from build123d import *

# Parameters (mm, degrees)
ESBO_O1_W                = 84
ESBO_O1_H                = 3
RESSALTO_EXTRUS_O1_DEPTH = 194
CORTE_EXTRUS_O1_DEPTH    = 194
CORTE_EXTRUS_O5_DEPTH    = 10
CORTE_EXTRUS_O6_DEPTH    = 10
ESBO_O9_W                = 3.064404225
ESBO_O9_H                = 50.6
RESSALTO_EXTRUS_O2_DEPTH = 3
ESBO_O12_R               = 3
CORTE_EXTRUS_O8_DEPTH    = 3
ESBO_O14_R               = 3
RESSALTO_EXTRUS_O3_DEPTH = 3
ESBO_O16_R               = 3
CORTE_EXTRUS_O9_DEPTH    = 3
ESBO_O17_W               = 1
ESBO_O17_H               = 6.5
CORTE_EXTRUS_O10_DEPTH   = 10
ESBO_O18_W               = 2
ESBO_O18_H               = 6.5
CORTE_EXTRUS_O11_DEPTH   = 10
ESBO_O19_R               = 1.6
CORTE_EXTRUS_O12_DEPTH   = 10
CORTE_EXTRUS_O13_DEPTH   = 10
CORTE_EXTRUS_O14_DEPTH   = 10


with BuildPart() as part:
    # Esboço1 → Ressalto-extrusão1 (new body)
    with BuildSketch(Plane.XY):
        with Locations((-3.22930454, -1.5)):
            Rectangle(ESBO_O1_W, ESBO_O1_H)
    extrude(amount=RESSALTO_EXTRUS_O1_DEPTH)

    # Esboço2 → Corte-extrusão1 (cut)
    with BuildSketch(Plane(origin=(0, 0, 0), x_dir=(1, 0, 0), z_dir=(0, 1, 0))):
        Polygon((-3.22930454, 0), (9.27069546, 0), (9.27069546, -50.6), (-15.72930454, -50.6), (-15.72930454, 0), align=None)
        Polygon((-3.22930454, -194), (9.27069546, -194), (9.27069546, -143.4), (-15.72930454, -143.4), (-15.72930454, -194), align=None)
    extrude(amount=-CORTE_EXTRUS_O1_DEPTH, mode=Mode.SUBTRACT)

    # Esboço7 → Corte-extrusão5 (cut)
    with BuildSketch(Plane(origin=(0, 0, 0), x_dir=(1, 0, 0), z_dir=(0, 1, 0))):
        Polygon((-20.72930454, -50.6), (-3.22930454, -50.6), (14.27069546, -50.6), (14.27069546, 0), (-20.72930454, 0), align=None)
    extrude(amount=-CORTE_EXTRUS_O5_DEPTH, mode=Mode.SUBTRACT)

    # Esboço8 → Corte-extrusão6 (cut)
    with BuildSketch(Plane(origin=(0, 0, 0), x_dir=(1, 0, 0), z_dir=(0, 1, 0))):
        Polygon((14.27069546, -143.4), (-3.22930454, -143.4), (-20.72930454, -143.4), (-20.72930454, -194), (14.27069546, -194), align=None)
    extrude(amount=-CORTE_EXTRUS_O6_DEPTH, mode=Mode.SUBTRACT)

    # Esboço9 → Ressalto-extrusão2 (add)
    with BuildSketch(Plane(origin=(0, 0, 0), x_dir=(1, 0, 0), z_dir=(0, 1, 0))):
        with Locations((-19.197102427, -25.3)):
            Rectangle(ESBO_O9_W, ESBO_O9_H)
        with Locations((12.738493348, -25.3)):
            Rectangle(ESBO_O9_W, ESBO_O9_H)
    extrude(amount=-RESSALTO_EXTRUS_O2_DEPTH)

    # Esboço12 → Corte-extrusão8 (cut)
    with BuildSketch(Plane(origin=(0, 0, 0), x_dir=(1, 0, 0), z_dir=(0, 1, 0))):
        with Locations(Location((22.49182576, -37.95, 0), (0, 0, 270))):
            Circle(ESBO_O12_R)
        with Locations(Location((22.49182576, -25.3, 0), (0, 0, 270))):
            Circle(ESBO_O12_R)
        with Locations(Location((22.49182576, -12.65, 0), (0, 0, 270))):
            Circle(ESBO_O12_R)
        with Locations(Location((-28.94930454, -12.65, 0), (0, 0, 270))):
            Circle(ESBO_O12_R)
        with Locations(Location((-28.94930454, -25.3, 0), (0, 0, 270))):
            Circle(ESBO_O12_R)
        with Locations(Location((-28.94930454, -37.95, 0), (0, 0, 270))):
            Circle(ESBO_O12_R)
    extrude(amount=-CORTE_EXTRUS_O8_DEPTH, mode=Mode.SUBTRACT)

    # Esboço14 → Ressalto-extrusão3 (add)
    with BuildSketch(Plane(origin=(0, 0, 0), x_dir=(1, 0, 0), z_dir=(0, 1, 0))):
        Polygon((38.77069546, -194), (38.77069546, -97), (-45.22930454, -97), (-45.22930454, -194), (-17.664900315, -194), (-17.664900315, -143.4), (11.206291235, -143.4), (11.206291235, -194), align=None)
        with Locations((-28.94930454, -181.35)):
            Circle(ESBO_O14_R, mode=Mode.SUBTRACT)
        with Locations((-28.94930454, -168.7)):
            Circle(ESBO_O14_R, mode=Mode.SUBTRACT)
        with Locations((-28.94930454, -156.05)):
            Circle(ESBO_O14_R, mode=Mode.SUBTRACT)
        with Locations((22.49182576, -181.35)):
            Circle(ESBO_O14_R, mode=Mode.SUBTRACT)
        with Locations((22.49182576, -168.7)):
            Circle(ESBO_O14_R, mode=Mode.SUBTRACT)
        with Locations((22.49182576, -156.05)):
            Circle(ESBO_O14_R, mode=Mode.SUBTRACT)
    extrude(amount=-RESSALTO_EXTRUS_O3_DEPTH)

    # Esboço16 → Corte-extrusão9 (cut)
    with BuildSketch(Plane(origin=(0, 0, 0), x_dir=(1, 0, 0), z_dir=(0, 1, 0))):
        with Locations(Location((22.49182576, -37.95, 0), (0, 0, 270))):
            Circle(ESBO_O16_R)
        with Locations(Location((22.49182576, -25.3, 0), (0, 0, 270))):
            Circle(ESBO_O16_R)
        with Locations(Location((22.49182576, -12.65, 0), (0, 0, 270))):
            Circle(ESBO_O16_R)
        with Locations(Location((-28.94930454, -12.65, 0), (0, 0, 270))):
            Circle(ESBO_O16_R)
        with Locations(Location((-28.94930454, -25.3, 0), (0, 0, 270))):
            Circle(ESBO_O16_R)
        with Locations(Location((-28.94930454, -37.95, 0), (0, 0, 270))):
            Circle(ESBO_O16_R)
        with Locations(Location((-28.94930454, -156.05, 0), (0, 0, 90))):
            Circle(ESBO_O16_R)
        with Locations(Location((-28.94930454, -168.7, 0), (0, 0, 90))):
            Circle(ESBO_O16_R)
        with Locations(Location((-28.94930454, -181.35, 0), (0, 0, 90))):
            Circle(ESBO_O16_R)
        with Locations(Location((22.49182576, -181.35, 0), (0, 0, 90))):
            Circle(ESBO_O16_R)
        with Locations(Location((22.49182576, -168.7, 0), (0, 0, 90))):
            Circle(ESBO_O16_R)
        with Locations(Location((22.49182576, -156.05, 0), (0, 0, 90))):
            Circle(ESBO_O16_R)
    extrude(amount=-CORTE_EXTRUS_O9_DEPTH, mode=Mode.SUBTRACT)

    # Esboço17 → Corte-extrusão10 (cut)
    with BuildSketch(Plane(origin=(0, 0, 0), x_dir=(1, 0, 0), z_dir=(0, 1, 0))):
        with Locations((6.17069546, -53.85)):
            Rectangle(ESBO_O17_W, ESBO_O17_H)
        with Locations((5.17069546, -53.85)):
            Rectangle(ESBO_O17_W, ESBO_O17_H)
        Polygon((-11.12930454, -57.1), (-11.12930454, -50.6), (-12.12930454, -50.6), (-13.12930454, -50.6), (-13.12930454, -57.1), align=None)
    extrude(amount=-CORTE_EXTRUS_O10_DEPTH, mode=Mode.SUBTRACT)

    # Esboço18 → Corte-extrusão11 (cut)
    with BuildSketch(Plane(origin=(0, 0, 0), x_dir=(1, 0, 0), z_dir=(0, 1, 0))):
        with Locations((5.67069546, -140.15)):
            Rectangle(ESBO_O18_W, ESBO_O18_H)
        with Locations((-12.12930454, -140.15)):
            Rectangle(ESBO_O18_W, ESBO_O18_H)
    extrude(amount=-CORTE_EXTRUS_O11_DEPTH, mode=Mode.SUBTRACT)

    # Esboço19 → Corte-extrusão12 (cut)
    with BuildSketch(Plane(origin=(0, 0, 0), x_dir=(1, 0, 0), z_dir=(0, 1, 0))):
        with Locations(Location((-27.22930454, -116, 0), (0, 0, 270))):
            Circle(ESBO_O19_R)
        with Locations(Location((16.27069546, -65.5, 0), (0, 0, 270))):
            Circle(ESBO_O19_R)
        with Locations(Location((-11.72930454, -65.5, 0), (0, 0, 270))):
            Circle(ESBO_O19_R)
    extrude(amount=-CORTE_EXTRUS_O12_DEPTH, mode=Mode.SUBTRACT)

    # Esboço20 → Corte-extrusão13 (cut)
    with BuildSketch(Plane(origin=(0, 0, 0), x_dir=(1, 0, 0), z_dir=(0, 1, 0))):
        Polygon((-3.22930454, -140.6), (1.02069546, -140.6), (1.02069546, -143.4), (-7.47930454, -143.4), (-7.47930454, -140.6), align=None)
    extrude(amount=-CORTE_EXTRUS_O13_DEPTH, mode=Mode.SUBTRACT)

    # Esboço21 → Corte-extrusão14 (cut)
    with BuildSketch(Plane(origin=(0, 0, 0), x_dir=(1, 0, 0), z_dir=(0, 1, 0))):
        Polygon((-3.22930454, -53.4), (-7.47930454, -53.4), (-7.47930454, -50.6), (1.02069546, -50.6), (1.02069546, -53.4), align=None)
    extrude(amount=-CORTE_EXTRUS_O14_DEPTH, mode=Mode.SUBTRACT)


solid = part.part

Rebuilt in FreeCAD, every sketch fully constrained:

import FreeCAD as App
import Part
import Sketcher


def add_polygon(sketch, points):
    """Adds a closed chain of lines whose ends are joined by coincident constraints."""
    first, n = sketch.GeometryCount, len(points)
    for a, b in zip(points, points[1:] + points[:1]):
        sketch.addGeometry(Part.LineSegment(App.Vector(*a, 0), App.Vector(*b, 0)), False)
    for i in range(n):
        sketch.addConstraint(Sketcher.Constraint("Coincident", first + i, 2, first + (i + 1) % n, 1))

doc = App.newDocument("Part")
body = doc.addObject("PartDesign::Body", "Body")

# Sketch on XY plane
sketch1 = body.newObject("Sketcher::SketchObject", "Sketch")
sketch1.AttachmentSupport = (doc.getObject("XY_Plane"), [""])
sketch1.MapMode = "FlatFace"
add_polygon(sketch1, [(-45.2, 0), (-45.2, -3), (38.8, -3), (38.8, 0)])  # lines 0-3
sketch1.addConstraint([
    Sketcher.Constraint("Vertical", 0),
    Sketcher.Constraint("Horizontal", 1),
    Sketcher.Constraint("Vertical", 2),
    Sketcher.Constraint("Horizontal", 3),
    Sketcher.Constraint("PointOnObject", 2, 2, -1),
    Sketcher.Constraint("DistanceX", 1, 1, 1, 2, 84.0),
    Sketcher.Constraint("DistanceY", 0, 2, 0, 1, 3.0),
    Sketcher.Constraint("DistanceX", 0, 2, -1, 1, 45.229305),
])
pad1 = body.newObject("PartDesign::Pad", "Pad")
pad1.Profile = sketch1
pad1.Length = 194

# Sketch on XZ plane
sketch2 = body.newObject("Sketcher::SketchObject", "Sketch001")
sketch2.AttachmentSupport = (doc.getObject("XZ_Plane"), [""])
sketch2.MapMode = "FlatFace"
add_polygon(sketch2, [(9, 0), (-16, 0), (-16, 51), (9, 51)])  # lines 0-3
add_polygon(sketch2, [(9, 194), (9, 143), (-16, 143), (-16, 194)])  # lines 4-7
sketch2.addConstraint([
    Sketcher.Constraint("Horizontal", 0),
    Sketcher.Constraint("Vertical", 1),
    Sketcher.Constraint("Horizontal", 2),
    Sketcher.Constraint("Vertical", 3),
    Sketcher.Constraint("Vertical", 4),
    Sketcher.Constraint("Horizontal", 5),
    Sketcher.Constraint("Vertical", 6),
    Sketcher.Constraint("Horizontal", 7),
    Sketcher.Constraint("PointOnObject", 0, 2, -1),
    Sketcher.Constraint("Vertical", 3, 2, 4, 2),
    Sketcher.Constraint("Vertical", 1, 2, 5, 2),
    Sketcher.Constraint("Equal", 3, 4),
    Sketcher.Constraint("DistanceX", 0, 2, 0, 1, 25.0),
    Sketcher.Constraint("DistanceY", 1, 1, 1, 2, 50.6),
    Sketcher.Constraint("DistanceY", -1, 1, 6, 2, 194.0),
    Sketcher.Constraint("DistanceX", 0, 2, -1, 1, 15.729305),
])
pocket1 = body.newObject("PartDesign::Pocket", "Pocket")
pocket1.Profile = sketch2
pocket1.Length = 194
pocket1.Reversed = True

# Sketch on XZ plane
sketch3 = body.newObject("Sketcher::SketchObject", "Sketch002")
sketch3.AttachmentSupport = (doc.getObject("XZ_Plane"), [""])
sketch3.MapMode = "FlatFace"
add_polygon(sketch3, [(-21, 51), (14, 51), (14, 0), (-21, 0)])  # lines 0-3
sketch3.addConstraint([
    Sketcher.Constraint("Horizontal", 0),
    Sketcher.Constraint("Vertical", 1),
    Sketcher.Constraint("Horizontal", 2),
    Sketcher.Constraint("Vertical", 3),
    Sketcher.Constraint("PointOnObject", 1, 2, -1),
    Sketcher.Constraint("DistanceX", 0, 1, 0, 2, 35.0),
    Sketcher.Constraint("DistanceY", 1, 2, 1, 1, 50.6),
    Sketcher.Constraint("DistanceX", -1, 1, 0, 2, 14.270695),
])
pocket2 = body.newObject("PartDesign::Pocket", "Pocket001")
pocket2.Profile = sketch3
pocket2.Length = 10
pocket2.Reversed = True

# Sketch on XZ plane
sketch4 = body.newObject("Sketcher::SketchObject", "Sketch003")
sketch4.AttachmentSupport = (doc.getObject("XZ_Plane"), [""])
sketch4.MapMode = "FlatFace"
add_polygon(sketch4, [(14, 143), (-21, 143), (-21, 194), (14, 194)])  # lines 0-3
sketch4.addConstraint([
    Sketcher.Constraint("Horizontal", 0),
    Sketcher.Constraint("Vertical", 1),
    Sketcher.Constraint("Horizontal", 2),
    Sketcher.Constraint("Vertical", 3),
    Sketcher.Constraint("DistanceX", 0, 2, 0, 1, 35.0),
    Sketcher.Constraint("DistanceY", 1, 1, 1, 2, 50.6),
    Sketcher.Constraint("DistanceY", -1, 1, 1, 2, 194.0),
    Sketcher.Constraint("DistanceX", 0, 2, -1, 1, 20.729305),
])
pocket3 = body.newObject("PartDesign::Pocket", "Pocket002")
pocket3.Profile = sketch4
pocket3.Length = 10
pocket3.Reversed = True

# Sketch on XZ plane
sketch5 = body.newObject("Sketcher::SketchObject", "Sketch004")
sketch5.AttachmentSupport = (doc.getObject("XZ_Plane"), [""])
sketch5.MapMode = "FlatFace"
add_polygon(sketch5, [(-20.7, 0), (-20.7, 50.6), (-17.7, 50.6), (-17.7, 0)])  # lines 0-3
add_polygon(sketch5, [(11.2, 0), (11.2, 50.6), (14.3, 50.6), (14.3, 0)])  # lines 4-7
sketch5.addConstraint([
    Sketcher.Constraint("Vertical", 0),
    Sketcher.Constraint("Horizontal", 1),
    Sketcher.Constraint("Vertical", 2),
    Sketcher.Constraint("Horizontal", 3),
    Sketcher.Constraint("Vertical", 4),
    Sketcher.Constraint("Horizontal", 5),
    Sketcher.Constraint("Vertical", 6),
    Sketcher.Constraint("Horizontal", 7),
    Sketcher.Constraint("PointOnObject", 2, 2, -1),
    Sketcher.Constraint("PointOnObject", 6, 2, -1),
    Sketcher.Constraint("Horizontal", 1, 2, 4, 2),
    Sketcher.Constraint("Equal", 3, 5),
    Sketcher.Constraint("DistanceY", 0, 1, 0, 2, 50.6),
    Sketcher.Constraint("DistanceX", 0, 2, 5, 2, 35.0),
    Sketcher.Constraint("DistanceX", 1, 2, -1, 1, 17.6649),
    Sketcher.Constraint("DistanceX", 1, 1, 1, 2, 3.064404),
])
pad2 = body.newObject("PartDesign::Pad", "Pad001")
pad2.Profile = sketch5
pad2.Length = 3

# Sketch on XZ plane
sketch6 = body.newObject("Sketcher::SketchObject", "Sketch005")
sketch6.AttachmentSupport = (doc.getObject("XZ_Plane"), [""])
sketch6.MapMode = "FlatFace"
sketch6.addGeometry([
    Part.Circle(App.Vector(22.5, 38, 0), App.Vector(0, 0, 1), 3),  # 0
    Part.Circle(App.Vector(22.5, 25.3, 0), App.Vector(0, 0, 1), 3),  # 1
    Part.Circle(App.Vector(22.5, 12.7, 0), App.Vector(0, 0, 1), 3),  # 2
    Part.Circle(App.Vector(-28.9, 12.7, 0), App.Vector(0, 0, 1), 3),  # 3
    Part.Circle(App.Vector(-28.9, 25.3, 0), App.Vector(0, 0, 1), 3),  # 4
    Part.Circle(App.Vector(-28.9, 38, 0), App.Vector(0, 0, 1), 3),  # 5
], False)
sketch6.addConstraint([
    Sketcher.Constraint("Equal", 0, 1),
    Sketcher.Constraint("Equal", 1, 2),
    Sketcher.Constraint("Equal", 2, 3),
    Sketcher.Constraint("Equal", 3, 4),
    Sketcher.Constraint("Equal", 4, 5),
    Sketcher.Constraint("Horizontal", 2, 3, 3, 3),
    Sketcher.Constraint("Horizontal", 1, 3, 4, 3),
    Sketcher.Constraint("Horizontal", 0, 3, 5, 3),
    Sketcher.Constraint("Vertical", 0, 3, 1, 3),
    Sketcher.Constraint("Vertical", 1, 3, 2, 3),
    Sketcher.Constraint("Vertical", 3, 3, 4, 3),
    Sketcher.Constraint("Vertical", 4, 3, 5, 3),
    Sketcher.Constraint("Diameter", 0, 6.0),
    Sketcher.Constraint("DistanceY", -1, 1, 1, 3, 25.3),
    Sketcher.Constraint("DistanceY", 2, 3, 0, 3, 25.3),
    Sketcher.Constraint("DistanceY", -1, 1, 0, 3, 37.95),
    Sketcher.Constraint("DistanceX", 3, 3, 2, 3, 51.44113),
    Sketcher.Constraint("DistanceX", -1, 1, 0, 3, 22.491826),
])
pocket4 = body.newObject("PartDesign::Pocket", "Pocket003")
pocket4.Profile = sketch6
pocket4.Length = 3
pocket4.Reversed = True

# Sketch on XZ plane
sketch7 = body.newObject("Sketcher::SketchObject", "Sketch006")
sketch7.AttachmentSupport = (doc.getObject("XZ_Plane"), [""])
sketch7.MapMode = "FlatFace"
add_polygon(sketch7, [(38.8, 194), (38.8, 97), (-45.2, 97), (-45.2, 194), (-17.7, 194), (-17.7, 143.4), (11.2, 143.4), (11.2, 194)])  # lines 0-7
sketch7.addGeometry(Part.Circle(App.Vector(-28.9, 181.3, 0), App.Vector(0, 0, 1), 3), False)  # 8
sketch7.addGeometry(Part.Circle(App.Vector(22.5, 181.3, 0), App.Vector(0, 0, 1), 3), False)  # 9
sketch7.addGeometry(Part.Circle(App.Vector(-28.9, 168.7, 0), App.Vector(0, 0, 1), 3), False)  # 10
sketch7.addGeometry(Part.Circle(App.Vector(-28.9, 156.1, 0), App.Vector(0, 0, 1), 3), False)  # 11
sketch7.addGeometry(Part.Circle(App.Vector(22.5, 168.7, 0), App.Vector(0, 0, 1), 3), False)  # 12
sketch7.addGeometry(Part.Circle(App.Vector(22.5, 156.1, 0), App.Vector(0, 0, 1), 3), False)  # 13
sketch7.addConstraint([
    Sketcher.Constraint("Vertical", 0),
    Sketcher.Constraint("Horizontal", 1),
    Sketcher.Constraint("Vertical", 2),
    Sketcher.Constraint("Horizontal", 3),
    Sketcher.Constraint("Vertical", 4),
    Sketcher.Constraint("Horizontal", 5),
    Sketcher.Constraint("Vertical", 6),
    Sketcher.Constraint("Horizontal", 7),
    Sketcher.Constraint("Equal", 8, 9),
    Sketcher.Constraint("Equal", 9, 10),
    Sketcher.Constraint("Equal", 10, 11),
    Sketcher.Constraint("Equal", 11, 12),
    Sketcher.Constraint("Equal", 12, 13),
    Sketcher.Constraint("Horizontal", 8, 3, 9, 3),
    Sketcher.Constraint("Horizontal", 10, 3, 12, 3),
    Sketcher.Constraint("Horizontal", 11, 3, 13, 3),
    Sketcher.Constraint("Horizontal", 3, 2, 6, 2),
    Sketcher.Constraint("Vertical", 8, 3, 10, 3),
    Sketcher.Constraint("Vertical", 10, 3, 11, 3),
    Sketcher.Constraint("Vertical", 9, 3, 12, 3),
    Sketcher.Constraint("Vertical", 12, 3, 13, 3),
    Sketcher.Constraint("Equal", 3, 7),
    Sketcher.Constraint("Diameter", 8, 6.0),
    Sketcher.Constraint("DistanceX", 1, 2, 1, 1, 84.0),
    Sketcher.Constraint("DistanceY", 0, 2, 0, 1, 97.0),
    Sketcher.Constraint("DistanceY", 4, 2, 4, 1, 50.6),
    Sketcher.Constraint("DistanceY", -1, 1, 0, 2, 97.0),
    Sketcher.Constraint("DistanceY", -1, 1, 10, 3, 168.7),
    Sketcher.Constraint("DistanceY", 11, 3, 8, 3, 25.3),
    Sketcher.Constraint("DistanceY", -1, 1, 8, 3, 181.35),
    Sketcher.Constraint("DistanceX", 11, 3, 0, 2, 67.72),
    Sketcher.Constraint("DistanceX", 5, 1, 5, 2, 28.871192),
    Sketcher.Constraint("DistanceX", 3, 2, -1, 1, 17.6649),
    Sketcher.Constraint("DistanceX", 8, 3, 9, 3, 51.44113),
])
pad3 = body.newObject("PartDesign::Pad", "Pad002")
pad3.Profile = sketch7
pad3.Length = 3

# Sketch on XZ plane
sketch8 = body.newObject("Sketcher::SketchObject", "Sketch007")
sketch8.AttachmentSupport = (doc.getObject("XZ_Plane"), [""])
sketch8.MapMode = "FlatFace"
sketch8.addGeometry([
    Part.Circle(App.Vector(22.5, 38, 0), App.Vector(0, 0, 1), 3),  # 0
    Part.Circle(App.Vector(22.5, 25.3, 0), App.Vector(0, 0, 1), 3),  # 1
    Part.Circle(App.Vector(22.5, 12.7, 0), App.Vector(0, 0, 1), 3),  # 2
    Part.Circle(App.Vector(-28.9, 12.7, 0), App.Vector(0, 0, 1), 3),  # 3
    Part.Circle(App.Vector(-28.9, 25.3, 0), App.Vector(0, 0, 1), 3),  # 4
    Part.Circle(App.Vector(-28.9, 38, 0), App.Vector(0, 0, 1), 3),  # 5
    Part.Circle(App.Vector(-28.9, 156.1, 0), App.Vector(0, 0, 1), 3),  # 6
    Part.Circle(App.Vector(-28.9, 168.7, 0), App.Vector(0, 0, 1), 3),  # 7
    Part.Circle(App.Vector(-28.9, 181.3, 0), App.Vector(0, 0, 1), 3),  # 8
    Part.Circle(App.Vector(22.5, 181.3, 0), App.Vector(0, 0, 1), 3),  # 9
    Part.Circle(App.Vector(22.5, 168.7, 0), App.Vector(0, 0, 1), 3),  # 10
    Part.Circle(App.Vector(22.5, 156.1, 0), App.Vector(0, 0, 1), 3),  # 11
], False)
sketch8.addConstraint([
    Sketcher.Constraint("Equal", 0, 1),
    Sketcher.Constraint("Equal", 1, 2),
    Sketcher.Constraint("Equal", 2, 3),
    Sketcher.Constraint("Equal", 3, 4),
    Sketcher.Constraint("Equal", 4, 5),
    Sketcher.Constraint("Equal", 5, 6),
    Sketcher.Constraint("Equal", 6, 7),
    Sketcher.Constraint("Equal", 7, 8),
    Sketcher.Constraint("Equal", 8, 9),
    Sketcher.Constraint("Equal", 9, 10),
    Sketcher.Constraint("Equal", 10, 11),
    Sketcher.Constraint("Horizontal", 2, 3, 3, 3),
    Sketcher.Constraint("Horizontal", 1, 3, 4, 3),
    Sketcher.Constraint("Horizontal", 0, 3, 5, 3),
    Sketcher.Constraint("Horizontal", 8, 3, 9, 3),
    Sketcher.Constraint("Horizontal", 7, 3, 10, 3),
    Sketcher.Constraint("Horizontal", 6, 3, 11, 3),
    Sketcher.Constraint("Vertical", 0, 3, 1, 3),
    Sketcher.Constraint("Vertical", 1, 3, 2, 3),
    Sketcher.Constraint("Vertical", 3, 3, 4, 3),
    Sketcher.Constraint("Vertical", 4, 3, 5, 3),
    Sketcher.Constraint("Vertical", 5, 3, 6, 3),
    Sketcher.Constraint("Vertical", 6, 3, 7, 3),
    Sketcher.Constraint("Vertical", 7, 3, 8, 3),
    Sketcher.Constraint("Vertical", 2, 3, 9, 3),
    Sketcher.Constraint("Vertical", 9, 3, 10, 3),
    Sketcher.Constraint("Vertical", 10, 3, 11, 3),
    Sketcher.Constraint("Diameter", 0, 6.0),
    Sketcher.Constraint("DistanceY", -1, 1, 1, 3, 25.3),
    Sketcher.Constraint("DistanceY", -1, 1, 7, 3, 168.7),
    Sketcher.Constraint("DistanceY", 2, 3, 0, 3, 25.3),
    Sketcher.Constraint("DistanceY", 5, 3, 6, 3, 118.1),
    Sketcher.Constraint("DistanceY", 6, 3, 8, 3, 25.3),
    Sketcher.Constraint("DistanceY", -1, 1, 0, 3, 37.95),
    Sketcher.Constraint("DistanceX", 3, 3, 2, 3, 51.44113),
    Sketcher.Constraint("DistanceX", -1, 1, 0, 3, 22.491826),
])
pocket5 = body.newObject("PartDesign::Pocket", "Pocket004")
pocket5.Profile = sketch8
pocket5.Length = 3
pocket5.Reversed = True

# Sketch on XZ plane
sketch9 = body.newObject("Sketcher::SketchObject", "Sketch008")
sketch9.AttachmentSupport = (doc.getObject("XZ_Plane"), [""])
sketch9.MapMode = "FlatFace"
add_polygon(sketch9, [(6.7, 57.1), (6.7, 50.6), (4.7, 50.6), (4.7, 57.1)])  # lines 0-3
add_polygon(sketch9, [(-11.1, 57.1), (-11.1, 50.6), (-13.1, 50.6), (-13.1, 57.1)])  # lines 4-7
sketch9.addConstraint([
    Sketcher.Constraint("Vertical", 0),
    Sketcher.Constraint("Horizontal", 1),
    Sketcher.Constraint("Vertical", 2),
    Sketcher.Constraint("Horizontal", 3),
    Sketcher.Constraint("Vertical", 4),
    Sketcher.Constraint("Horizontal", 5),
    Sketcher.Constraint("Vertical", 6),
    Sketcher.Constraint("Horizontal", 7),
    Sketcher.Constraint("Horizontal", 1, 2, 4, 2),
    Sketcher.Constraint("Horizontal", 3, 2, 6, 2),
    Sketcher.Constraint("Equal", 3, 5),
    Sketcher.Constraint("DistanceX", 1, 2, 1, 1, 2.0),
    Sketcher.Constraint("DistanceY", 0, 2, 0, 1, 6.5),
    Sketcher.Constraint("DistanceY", -1, 1, 0, 2, 50.6),
    Sketcher.Constraint("DistanceX", 4, 2, 1, 2, 15.8),
    Sketcher.Constraint("DistanceX", -1, 1, 0, 2, 6.670695),
])
pocket6 = body.newObject("PartDesign::Pocket", "Pocket005")
pocket6.Profile = sketch9
pocket6.Length = 10
pocket6.Reversed = True

# Sketch on XZ plane
sketch10 = body.newObject("Sketcher::SketchObject", "Sketch009")
sketch10.AttachmentSupport = (doc.getObject("XZ_Plane"), [""])
sketch10.MapMode = "FlatFace"
add_polygon(sketch10, [(4.7, 136.9), (4.7, 143.4), (6.7, 143.4), (6.7, 136.9)])  # lines 0-3
add_polygon(sketch10, [(-13.1, 136.9), (-13.1, 143.4), (-11.1, 143.4), (-11.1, 136.9)])  # lines 4-7
sketch10.addConstraint([
    Sketcher.Constraint("Vertical", 0),
    Sketcher.Constraint("Horizontal", 1),
    Sketcher.Constraint("Vertical", 2),
    Sketcher.Constraint("Horizontal", 3),
    Sketcher.Constraint("Vertical", 4),
    Sketcher.Constraint("Horizontal", 5),
    Sketcher.Constraint("Vertical", 6),
    Sketcher.Constraint("Horizontal", 7),
    Sketcher.Constraint("Horizontal", 1, 2, 4, 2),
    Sketcher.Constraint("Horizontal", 3, 2, 6, 2),
    Sketcher.Constraint("Equal", 3, 5),
    Sketcher.Constraint("DistanceX", 1, 1, 1, 2, 2.0),
    Sketcher.Constraint("DistanceY", 0, 1, 0, 2, 6.5),
    Sketcher.Constraint("DistanceY", -1, 1, 0, 2, 143.4),
    Sketcher.Constraint("DistanceX", 4, 2, 0, 2, 17.8),
    Sketcher.Constraint("DistanceX", -1, 1, 0, 2, 4.670695),
])
pocket7 = body.newObject("PartDesign::Pocket", "Pocket006")
pocket7.Profile = sketch10
pocket7.Length = 10
pocket7.Reversed = True

# Sketch on XZ plane
sketch11 = body.newObject("Sketcher::SketchObject", "Sketch010")
sketch11.AttachmentSupport = (doc.getObject("XZ_Plane"), [""])
sketch11.MapMode = "FlatFace"
sketch11.addGeometry([
    Part.Circle(App.Vector(-27.2, 116, 0), App.Vector(0, 0, 1), 1.6),
    Part.Circle(App.Vector(16.3, 65.5, 0), App.Vector(0, 0, 1), 1.6),
    Part.Circle(App.Vector(-11.7, 65.5, 0), App.Vector(0, 0, 1), 1.6),
], False)
sketch11.addConstraint([
    Sketcher.Constraint("Equal", 0, 1),
    Sketcher.Constraint("Equal", 1, 2),
    Sketcher.Constraint("Horizontal", 1, 3, 2, 3),
    Sketcher.Constraint("Diameter", 0, 3.2),
    Sketcher.Constraint("DistanceY", -1, 1, 0, 3, 116.0),
    Sketcher.Constraint("DistanceX", 2, 3, 1, 3, 28.0),
    Sketcher.Constraint("DistanceY", -1, 1, 1, 3, 65.5),
    Sketcher.Constraint("DistanceX", 0, 3, 1, 3, 43.5),
    Sketcher.Constraint("DistanceX", 0, 3, -1, 1, 27.229305),
])
pocket8 = body.newObject("PartDesign::Pocket", "Pocket007")
pocket8.Profile = sketch11
pocket8.Length = 10
pocket8.Reversed = True

# Sketch on XZ plane
sketch12 = body.newObject("Sketcher::SketchObject", "Sketch011")
sketch12.AttachmentSupport = (doc.getObject("XZ_Plane"), [""])
sketch12.MapMode = "FlatFace"
add_polygon(sketch12, [(1, 140.6), (-7.5, 140.6), (-7.5, 143.4), (1, 143.4)])  # lines 0-3
sketch12.addConstraint([
    Sketcher.Constraint("Horizontal", 0),
    Sketcher.Constraint("Vertical", 1),
    Sketcher.Constraint("Horizontal", 2),
    Sketcher.Constraint("Vertical", 3),
    Sketcher.Constraint("DistanceX", 0, 2, 0, 1, 8.5),
    Sketcher.Constraint("DistanceY", 1, 1, 1, 2, 2.8),
    Sketcher.Constraint("DistanceY", -1, 1, 0, 2, 140.6),
    Sketcher.Constraint("DistanceX", 0, 2, -1, 1, 7.479305),
])
pocket9 = body.newObject("PartDesign::Pocket", "Pocket008")
pocket9.Profile = sketch12
pocket9.Length = 10
pocket9.Reversed = True

# Sketch on XZ plane
sketch13 = body.newObject("Sketcher::SketchObject", "Sketch012")
sketch13.AttachmentSupport = (doc.getObject("XZ_Plane"), [""])
sketch13.MapMode = "FlatFace"
add_polygon(sketch13, [(-7.5, 53.4), (1, 53.4), (1, 50.6), (-7.5, 50.6)])  # lines 0-3
sketch13.addConstraint([
    Sketcher.Constraint("Horizontal", 0),
    Sketcher.Constraint("Vertical", 1),
    Sketcher.Constraint("Horizontal", 2),
    Sketcher.Constraint("Vertical", 3),
    Sketcher.Constraint("DistanceX", 0, 1, 0, 2, 8.5),
    Sketcher.Constraint("DistanceY", 1, 2, 1, 1, 2.8),
    Sketcher.Constraint("DistanceY", -1, 1, 0, 2, 53.4),
    Sketcher.Constraint("DistanceX", -1, 1, 0, 2, 1.020695),
])
pocket10 = body.newObject("PartDesign::Pocket", "Pocket009")
pocket10.Profile = sketch13
pocket10.Length = 10
pocket10.Reversed = True

doc.recompute()
